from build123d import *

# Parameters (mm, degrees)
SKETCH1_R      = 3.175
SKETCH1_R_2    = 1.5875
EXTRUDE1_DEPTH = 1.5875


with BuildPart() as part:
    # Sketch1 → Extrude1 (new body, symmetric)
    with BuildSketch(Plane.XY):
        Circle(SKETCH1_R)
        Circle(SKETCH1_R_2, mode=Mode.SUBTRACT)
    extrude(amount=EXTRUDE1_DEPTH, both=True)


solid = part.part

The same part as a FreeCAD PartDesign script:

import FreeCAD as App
import Part
import Sketcher
Q = App.Units.Quantity

doc = App.newDocument("Part")
body = doc.addObject("PartDesign::Body", "Body")

# Sketch on XY plane
sketch1 = doc.addObject("Sketcher::SketchObject", "Sketch")
body.addObject(sketch1)
sketch1.AttachmentSupport = (doc.XY_Plane, [""])
sketch1.MapMode = "FlatFace"
sketch1.addGeometry(Part.Circle(App.Vector(0, 0, 0), App.Vector(0, 0, 1), 3.2), False)
sketch1.addGeometry(Part.Circle(App.Vector(0, 0, 0), App.Vector(0, 0, 1), 1.6), False)
sketch1.addConstraint(Sketcher.Constraint("Coincident", 0, 3, -1, 1))
sketch1.addConstraint(Sketcher.Constraint("Coincident", 1, 3, -1, 1))
sketch1.addConstraint(Sketcher.Constraint("Diameter", 0, Q("0.25 in")))
sketch1.addConstraint(Sketcher.Constraint("Diameter", 1, Q("0.125 in")))
pad1 = doc.addObject("PartDesign::Pad", "Pad")
body.addObject(pad1)
pad1.Profile = sketch1
pad1.Length = Q("0.125 in")
pad1.Midplane = True

doc.recompute()
